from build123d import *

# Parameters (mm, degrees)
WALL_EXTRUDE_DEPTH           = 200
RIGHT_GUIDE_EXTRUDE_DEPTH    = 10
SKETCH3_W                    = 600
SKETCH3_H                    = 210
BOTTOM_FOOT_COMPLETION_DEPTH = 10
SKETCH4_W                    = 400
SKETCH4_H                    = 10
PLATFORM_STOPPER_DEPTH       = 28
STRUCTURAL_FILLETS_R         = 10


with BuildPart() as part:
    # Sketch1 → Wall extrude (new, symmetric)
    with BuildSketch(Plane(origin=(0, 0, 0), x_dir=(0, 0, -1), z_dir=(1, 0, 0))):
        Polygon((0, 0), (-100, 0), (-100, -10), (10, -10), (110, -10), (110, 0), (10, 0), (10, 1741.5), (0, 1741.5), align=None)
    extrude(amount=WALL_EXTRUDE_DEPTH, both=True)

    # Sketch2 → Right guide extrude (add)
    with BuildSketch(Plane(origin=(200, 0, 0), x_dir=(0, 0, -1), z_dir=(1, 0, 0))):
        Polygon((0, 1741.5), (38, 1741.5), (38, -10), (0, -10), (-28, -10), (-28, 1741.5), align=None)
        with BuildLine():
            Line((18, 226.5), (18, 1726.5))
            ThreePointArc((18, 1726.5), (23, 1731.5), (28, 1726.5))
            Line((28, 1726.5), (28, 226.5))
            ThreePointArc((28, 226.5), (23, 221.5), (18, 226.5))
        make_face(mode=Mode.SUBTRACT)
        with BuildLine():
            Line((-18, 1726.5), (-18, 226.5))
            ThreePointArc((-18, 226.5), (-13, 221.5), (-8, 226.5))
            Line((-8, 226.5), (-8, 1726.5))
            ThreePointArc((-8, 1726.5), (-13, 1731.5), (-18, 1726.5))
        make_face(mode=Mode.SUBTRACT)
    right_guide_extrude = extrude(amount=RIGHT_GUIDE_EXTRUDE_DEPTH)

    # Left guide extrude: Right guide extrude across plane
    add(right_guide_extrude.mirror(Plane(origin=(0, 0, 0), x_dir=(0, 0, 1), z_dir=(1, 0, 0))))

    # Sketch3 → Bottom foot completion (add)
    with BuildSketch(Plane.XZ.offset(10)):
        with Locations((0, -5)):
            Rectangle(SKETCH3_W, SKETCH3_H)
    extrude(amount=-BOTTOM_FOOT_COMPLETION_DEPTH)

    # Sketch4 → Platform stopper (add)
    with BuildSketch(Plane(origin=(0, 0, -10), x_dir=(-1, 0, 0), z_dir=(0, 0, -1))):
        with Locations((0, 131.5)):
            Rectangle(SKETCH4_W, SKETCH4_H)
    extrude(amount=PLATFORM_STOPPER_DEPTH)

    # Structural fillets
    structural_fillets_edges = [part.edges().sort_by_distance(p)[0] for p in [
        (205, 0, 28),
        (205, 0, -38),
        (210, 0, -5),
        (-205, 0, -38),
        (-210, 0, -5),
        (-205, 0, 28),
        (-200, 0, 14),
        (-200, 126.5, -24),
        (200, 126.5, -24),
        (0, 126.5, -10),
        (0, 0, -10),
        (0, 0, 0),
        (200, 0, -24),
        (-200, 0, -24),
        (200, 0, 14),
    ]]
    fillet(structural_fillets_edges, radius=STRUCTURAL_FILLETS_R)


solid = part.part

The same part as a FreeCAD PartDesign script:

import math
import FreeCAD as App
import Part
import Sketcher
Q = App.Units.Quantity


def edges_at(feature, points):
    """Names of the edges that pass closest to the given points."""
    edges = feature.Shape.Edges
    near = lambda p: min(range(len(edges)), key=lambda i: edges[i].distToShape(Part.Vertex(*p))[0])
    return sorted({f"Edge{near(p) + 1}" for p in points})


def add_polygon(sketch, points):
    """Adds a closed chain of lines whose ends are joined by coincident constraints."""
    first, n = sketch.GeometryCount, len(points)
    for a, b in zip(points, points[1:] + points[:1]):
        sketch.addGeometry(Part.LineSegment(App.Vector(*a, 0), App.Vector(*b, 0)), False)
    for i in range(n):
        sketch.addConstraint(Sketcher.Constraint("Coincident", first + i, 2, first + (i + 1) % n, 1))

doc = App.newDocument("Part")
body = doc.addObject("PartDesign::Body", "Body")

# Sketch on YZ plane
sketch1 = body.newObject("Sketcher::SketchObject", "Sketch")
sketch1.AttachmentSupport = (doc.getObject("YZ_Plane"), [""])
sketch1.MapMode = "FlatFace"
add_polygon(sketch1, [(0, 0), (0, 100), (-10, 100), (-10, -110), (0, -110), (0, -10), (1741.5, -10), (1741.5, 0)])  # lines 0-7
sketch1.addConstraint([
    Sketcher.Constraint("Vertical", 0),
    Sketcher.Constraint("Horizontal", 1),
    Sketcher.Constraint("Vertical", 2),
    Sketcher.Constraint("Horizontal", 3),
    Sketcher.Constraint("Vertical", 4),
    Sketcher.Constraint("Horizontal", 5),
    Sketcher.Constraint("Vertical", 6),
    Sketcher.Constraint("Horizontal", 7),
    Sketcher.Constraint("Coincident", 7, 2, -1, 1),
    Sketcher.Constraint("PointOnObject", 3, 2, -2),
    Sketcher.Constraint("Equal", 0, 4),
    Sketcher.Constraint("Equal", 3, 6),
    Sketcher.Constraint("DistanceX", 1, 2, 1, 1, Q("10 mm")),
    Sketcher.Constraint("DistanceY", 0, 1, 0, 2, Q("100 mm")),
    Sketcher.Constraint("DistanceX", 5, 1, 5, 2, Q("1741.5 mm")),
])
pad1 = body.newObject("PartDesign::Pad", "Pad")
pad1.Profile = sketch1
pad1.Length = 400
pad1.Midplane = True

# Sketch on YZ plane
sketch2 = body.newObject("Sketcher::SketchObject", "Sketch001")
sketch2.AttachmentSupport = (doc.getObject("YZ_Plane"), [""])
sketch2.MapMode = "FlatFace"
sketch2.AttachmentOffset = App.Placement(App.Vector(0, 0, 200), App.Rotation())
add_polygon(sketch2, [(1741.5, -38), (1741.5, 28), (-10, 28), (-10, -38)])  # lines 0-3
sketch2.addGeometry(Part.LineSegment(App.Vector(226.5, -18, 0), App.Vector(1726.5, -18, 0)), False)  # 4
sketch2.addGeometry(Part.ArcOfCircle(Part.Circle(App.Vector(1726.5, -23, 0), App.Vector(0, 0, 1), 5), math.radians(-90), math.radians(90)), False)  # 5
sketch2.addGeometry(Part.LineSegment(App.Vector(1726.5, -28, 0), App.Vector(226.5, -28, 0)), False)  # 6
sketch2.addGeometry(Part.ArcOfCircle(Part.Circle(App.Vector(226.5, -23, 0), App.Vector(0, 0, 1), 5), math.radians(90), math.radians(270)), False)  # 7
sketch2.addGeometry(Part.ArcOfCircle(Part.Circle(App.Vector(1726.5, 13, 0), App.Vector(0, 0, 1), 5), math.radians(-90), math.radians(90)), False)  # 8
sketch2.addGeometry(Part.LineSegment(App.Vector(1726.5, 8, 0), App.Vector(226.5, 8, 0)), False)  # 9
sketch2.addGeometry(Part.ArcOfCircle(Part.Circle(App.Vector(226.5, 13, 0), App.Vector(0, 0, 1), 5), math.radians(90), math.radians(270)), False)  # 10
sketch2.addGeometry(Part.LineSegment(App.Vector(226.5, 18, 0), App.Vector(1726.5, 18, 0)), False)  # 11
sketch2.addConstraint([
    Sketcher.Constraint("Tangent", 4, 2, 5, 2),
    Sketcher.Constraint("Tangent", 5, 1, 6, 1),
    Sketcher.Constraint("Tangent", 6, 2, 7, 2),
    Sketcher.Constraint("Tangent", 7, 1, 4, 1),
    Sketcher.Constraint("Tangent", 8, 1, 9, 1),
    Sketcher.Constraint("Tangent", 9, 2, 10, 2),
    Sketcher.Constraint("Tangent", 10, 1, 11, 1),
    Sketcher.Constraint("Tangent", 11, 2, 8, 2),
    Sketcher.Constraint("Vertical", 0),
    Sketcher.Constraint("Horizontal", 1),
    Sketcher.Constraint("Vertical", 2),
    Sketcher.Constraint("Horizontal", 3),
    Sketcher.Constraint("Horizontal", 4),
    Sketcher.Constraint("Horizontal", 6),
    Sketcher.Constraint("Horizontal", 9),
    Sketcher.Constraint("Horizontal", 11),
    Sketcher.Constraint("Equal", 7, 8),
    Sketcher.Constraint("Symmetric", 7, 1, 10, 1, -1),
    Sketcher.Constraint("Vertical", 5, 3, 8, 3),
    Sketcher.Constraint("Radius", 5, Q("5 mm")),
    Sketcher.Constraint("DistanceX", 4, 1, 4, 2, Q("1500 mm")),
    Sketcher.Constraint("DistanceY", 0, 1, 0, 2, Q("66 mm")),
    Sketcher.Constraint("DistanceX", 1, 2, 1, 1, Q("1751.5 mm")),
    Sketcher.Constraint("DistanceY", 5, 3, -1, 1, Q("23 mm")),
    Sketcher.Constraint("DistanceY", -1, 1, 0, 2, Q("28 mm")),
    Sketcher.Constraint("DistanceX", 1, 2, -1, 1, Q("10 mm")),
    Sketcher.Constraint("DistanceX", 8, 3, 0, 2, Q("15 mm")),
])
pad2 = body.newObject("PartDesign::Pad", "Pad001")
pad2.Profile = sketch2
pad2.Length = 10
doc.recompute()

mirrored = body.newObject("PartDesign::Mirrored", "Mirrored")
mirrored.Originals = [pad2]
mirrored.MirrorPlane = (doc.getObject("YZ_Plane"), [""])
body.Tip = mirrored

# Sketch on XZ plane
sketch3 = body.newObject("Sketcher::SketchObject", "Sketch002")
sketch3.AttachmentSupport = (doc.getObject("XZ_Plane"), [""])
sketch3.MapMode = "FlatFace"
sketch3.AttachmentOffset = App.Placement(App.Vector(0, 0, 10), App.Rotation())
add_polygon(sketch3, [(-300, 100), (-300, -110), (300, -110), (300, 100)])  # lines 0-3
sketch3.addConstraint([
    Sketcher.Constraint("Vertical", 0),
    Sketcher.Constraint("Horizontal", 1),
    Sketcher.Constraint("Vertical", 2),
    Sketcher.Constraint("Horizontal", 3),
    Sketcher.Constraint("DistanceX", 1, 1, 1, 2, Q("600 mm")),
    Sketcher.Constraint("DistanceY", 0, 2, 0, 1, Q("210 mm")),
    Sketcher.Constraint("DistanceX", 0, 2, -1, 1, Q("300 mm")),
    Sketcher.Constraint("DistanceY", 0, 2, -1, 1, Q("110 mm")),
])
pad3 = body.newObject("PartDesign::Pad", "Pad002")
pad3.Profile = sketch3
pad3.Length = 10
pad3.Reversed = True

# Sketch on XY plane
sketch4 = body.newObject("Sketcher::SketchObject", "Sketch003")
sketch4.AttachmentSupport = (doc.getObject("XY_Plane"), [""])
sketch4.MapMode = "FlatFace"
sketch4.AttachmentOffset = App.Placement(App.Vector(0, 0, -10), App.Rotation())
add_polygon(sketch4, [(200, 136.5), (200, 126.5), (-200, 126.5), (-200, 136.5)])  # lines 0-3
sketch4.addConstraint([
    Sketcher.Constraint("Vertical", 0),
    Sketcher.Constraint("Horizontal", 1),
    Sketcher.Constraint("Vertical", 2),
    Sketcher.Constraint("Horizontal", 3),
    Sketcher.Constraint("DistanceX", 1, 2, 1, 1, Q("400 mm")),
    Sketcher.Constraint("DistanceY", 0, 2, 0, 1, Q("10 mm")),
    Sketcher.Constraint("DistanceX", -1, 1, 0, 2, Q("200 mm")),
    Sketcher.Constraint("DistanceY", -1, 1, 0, 2, Q("126.5 mm")),
])
pad4 = body.newObject("PartDesign::Pad", "Pad003")
pad4.Profile = sketch4
pad4.Length = 28
pad4.Reversed = True
doc.recompute()

fillet = body.newObject("PartDesign::Fillet", "Fillet")
fillet.Base = (pad4, edges_at(pad4, [
    (205, 0, 28),
    (205, 0, -38),
    (210, 0, -5),
    (-205, 0, -38),
    (-210, 0, -5),
    (-205, 0, 28),
    (-200, 0, 14),
    (-200, 126.5, -24),
    (200, 126.5, -24),
    (0, 126.5, -10),
    (0, 0, -10),
    (0, 0, 0),
    (200, 0, -24),
    (-200, 0, -24),
    (200, 0, 14),
]))
fillet.Radius = 10

doc.recompute()
